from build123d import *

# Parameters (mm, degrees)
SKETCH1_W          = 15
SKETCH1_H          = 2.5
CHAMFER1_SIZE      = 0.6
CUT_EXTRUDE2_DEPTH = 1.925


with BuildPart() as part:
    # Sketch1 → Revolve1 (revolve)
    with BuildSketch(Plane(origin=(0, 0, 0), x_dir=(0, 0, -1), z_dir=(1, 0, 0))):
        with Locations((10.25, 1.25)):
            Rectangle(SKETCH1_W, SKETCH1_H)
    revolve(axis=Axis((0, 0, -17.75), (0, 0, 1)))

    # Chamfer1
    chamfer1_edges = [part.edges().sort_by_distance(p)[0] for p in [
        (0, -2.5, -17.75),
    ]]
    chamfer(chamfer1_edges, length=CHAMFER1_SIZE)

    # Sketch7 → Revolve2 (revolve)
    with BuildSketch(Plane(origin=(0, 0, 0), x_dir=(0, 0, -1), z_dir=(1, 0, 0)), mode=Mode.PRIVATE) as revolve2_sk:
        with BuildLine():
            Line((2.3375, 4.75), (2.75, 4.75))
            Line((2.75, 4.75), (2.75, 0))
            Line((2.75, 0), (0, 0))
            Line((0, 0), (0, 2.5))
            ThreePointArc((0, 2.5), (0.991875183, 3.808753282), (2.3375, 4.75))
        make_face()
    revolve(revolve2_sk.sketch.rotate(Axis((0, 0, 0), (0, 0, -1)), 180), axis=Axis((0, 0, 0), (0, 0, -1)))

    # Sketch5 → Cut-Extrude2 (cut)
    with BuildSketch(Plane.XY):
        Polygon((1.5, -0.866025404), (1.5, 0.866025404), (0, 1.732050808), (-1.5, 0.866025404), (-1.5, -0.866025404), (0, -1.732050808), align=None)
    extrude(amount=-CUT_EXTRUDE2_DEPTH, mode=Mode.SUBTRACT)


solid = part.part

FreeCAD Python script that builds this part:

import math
import FreeCAD as App
import Part
import Sketcher
Q = App.Units.Quantity


def edges_at(feature, points):
    """Names of the edges that pass closest to the given points."""
    edges = feature.Shape.Edges
    near = lambda p: min(range(len(edges)), key=lambda i: edges[i].distToShape(Part.Vertex(*p))[0])
    return sorted({f"Edge{near(p) + 1}" for p in points})


def add_polygon(sketch, points):
    """Adds a closed chain of lines whose ends are joined by coincident constraints."""
    first, n = sketch.GeometryCount, len(points)
    for a, b in zip(points, points[1:] + points[:1]):
        sketch.addGeometry(Part.LineSegment(App.Vector(*a, 0), App.Vector(*b, 0)), False)
    for i in range(n):
        sketch.addConstraint(Sketcher.Constraint("Coincident", first + i, 2, first + (i + 1) % n, 1))

doc = App.newDocument("Part")
body = doc.addObject("PartDesign::Body", "Body")

# Sketch on YZ plane
sketch1 = doc.addObject("Sketcher::SketchObject", "Sketch")
body.addObject(sketch1)
sketch1.AttachmentSupport = (doc.YZ_Plane, [""])
sketch1.MapMode = "FlatFace"
add_polygon(sketch1, [(2.5, -2.8), (0, -2.8), (0, -17.8), (2.5, -17.8)])  # lines 0-3
sketch1.addConstraint([
    Sketcher.Constraint("Horizontal", 0),
    Sketcher.Constraint("Vertical", 1),
    Sketcher.Constraint("Horizontal", 2),
    Sketcher.Constraint("Vertical", 3),
    Sketcher.Constraint("PointOnObject", 0, 2, -2),
    Sketcher.Constraint("DistanceY", 1, 2, 1, 1, 15.0),
    Sketcher.Constraint("DistanceX", 0, 2, 0, 1, 2.5),
    Sketcher.Constraint("DistanceY", 0, 2, -1, 1, 2.75),
])
revolution = doc.addObject("PartDesign::Revolution", "Revolution")
body.addObject(revolution)
revolution.Profile = sketch1
revolution.ReferenceAxis = (sketch1, ["V_Axis"])
revolution.Angle = 360
doc.recompute()

chamfer = doc.addObject("PartDesign::Chamfer", "Chamfer")
body.addObject(chamfer)
chamfer.Base = (revolution, edges_at(revolution, [(0, -2.5, -17.75)]))
chamfer.Size = 0.6

# Sketch on YZ plane
sketch2 = doc.addObject("Sketcher::SketchObject", "Sketch001")
body.addObject(sketch2)
sketch2.AttachmentSupport = (doc.YZ_Plane, [""])
sketch2.MapMode = "FlatFace"
sketch2.addGeometry([
    Part.LineSegment(App.Vector(4.75, -2.75, 0), App.Vector(4.75, -2.34, 0)),  # 0
    Part.ArcOfCircle(Part.Circle(App.Vector(0, -4.66, 0), App.Vector(0, 0, 1), 5.29), math.radians(26), math.radians(62)),  # 1
    Part.LineSegment(App.Vector(2.5, 0, 0), App.Vector(0, 0, 0)),  # 2
    Part.LineSegment(App.Vector(0, 0, 0), App.Vector(0, -2.75, 0)),  # 3
    Part.LineSegment(App.Vector(0, -2.75, 0), App.Vector(4.75, -2.75, 0)),  # 4
], False)
sketch2.addConstraint([
    Sketcher.Constraint("Coincident", 0, 2, 1, 1),
    Sketcher.Constraint("Coincident", 1, 2, 2, 1),
    Sketcher.Constraint("Coincident", 2, 2, 3, 1),
    Sketcher.Constraint("Coincident", 3, 2, 4, 1),
    Sketcher.Constraint("Coincident", 4, 2, 0, 1),
    Sketcher.Constraint("Vertical", 0),
    Sketcher.Constraint("Horizontal", 2),
    Sketcher.Constraint("Vertical", 3),
    Sketcher.Constraint("Horizontal", 4),
    Sketcher.Constraint("Coincident", 2, 2, -1, 1),
    Sketcher.Constraint("PointOnObject", 1, 3, -2),
    Sketcher.Constraint("DistanceX", 2, 2, 2, 1, 2.5),
    Sketcher.Constraint("DistanceX", 4, 1, 4, 2, 4.75),
    Sketcher.Constraint("DistanceY", 3, 2, 3, 1, 2.75),
    Sketcher.Constraint("DistanceY", 0, 1, 0, 2, 0.4125),
])
revolution2 = doc.addObject("PartDesign::Revolution", "Revolution001")
body.addObject(revolution2)
revolution2.Profile = sketch2
revolution2.ReferenceAxis = (sketch2, ["V_Axis"])
revolution2.Angle = 360

# Sketch on XY plane
sketch3 = doc.addObject("Sketcher::SketchObject", "Sketch002")
body.addObject(sketch3)
sketch3.AttachmentSupport = (doc.XY_Plane, [""])
sketch3.MapMode = "FlatFace"
add_polygon(sketch3, [(1.5, -0.9), (1.5, 0.9), (0, 1.7), (-1.5, 0.9), (-1.5, -0.9), (0, -1.7)])  # lines 0-5
sketch3.addConstraint([
    Sketcher.Constraint("Vertical", 0),
    Sketcher.Constraint("Vertical", 3),
    Sketcher.Constraint("Symmetric", 0, 2, 3, 2, -1, 1),
    Sketcher.Constraint("Symmetric", 1, 2, 4, 2, -1, 1),
    Sketcher.Constraint("PointOnObject", 1, 2, -2),
    Sketcher.Constraint("Parallel", 2, 5),
    Sketcher.Constraint("Horizontal", 0, 2, 2, 2),
    Sketcher.Constraint("Angle", 1, Q("150 deg")),
    Sketcher.Constraint("DistanceX", 2, 2, 0, 2, 3.0),
    Sketcher.Constraint("DistanceY", 0, 1, 0, 2, 1.732051),
])
pocket1 = doc.addObject("PartDesign::Pocket", "Pocket")
body.addObject(pocket1)
pocket1.Profile = sketch3
pocket1.Length = 1.925

doc.recompute()
